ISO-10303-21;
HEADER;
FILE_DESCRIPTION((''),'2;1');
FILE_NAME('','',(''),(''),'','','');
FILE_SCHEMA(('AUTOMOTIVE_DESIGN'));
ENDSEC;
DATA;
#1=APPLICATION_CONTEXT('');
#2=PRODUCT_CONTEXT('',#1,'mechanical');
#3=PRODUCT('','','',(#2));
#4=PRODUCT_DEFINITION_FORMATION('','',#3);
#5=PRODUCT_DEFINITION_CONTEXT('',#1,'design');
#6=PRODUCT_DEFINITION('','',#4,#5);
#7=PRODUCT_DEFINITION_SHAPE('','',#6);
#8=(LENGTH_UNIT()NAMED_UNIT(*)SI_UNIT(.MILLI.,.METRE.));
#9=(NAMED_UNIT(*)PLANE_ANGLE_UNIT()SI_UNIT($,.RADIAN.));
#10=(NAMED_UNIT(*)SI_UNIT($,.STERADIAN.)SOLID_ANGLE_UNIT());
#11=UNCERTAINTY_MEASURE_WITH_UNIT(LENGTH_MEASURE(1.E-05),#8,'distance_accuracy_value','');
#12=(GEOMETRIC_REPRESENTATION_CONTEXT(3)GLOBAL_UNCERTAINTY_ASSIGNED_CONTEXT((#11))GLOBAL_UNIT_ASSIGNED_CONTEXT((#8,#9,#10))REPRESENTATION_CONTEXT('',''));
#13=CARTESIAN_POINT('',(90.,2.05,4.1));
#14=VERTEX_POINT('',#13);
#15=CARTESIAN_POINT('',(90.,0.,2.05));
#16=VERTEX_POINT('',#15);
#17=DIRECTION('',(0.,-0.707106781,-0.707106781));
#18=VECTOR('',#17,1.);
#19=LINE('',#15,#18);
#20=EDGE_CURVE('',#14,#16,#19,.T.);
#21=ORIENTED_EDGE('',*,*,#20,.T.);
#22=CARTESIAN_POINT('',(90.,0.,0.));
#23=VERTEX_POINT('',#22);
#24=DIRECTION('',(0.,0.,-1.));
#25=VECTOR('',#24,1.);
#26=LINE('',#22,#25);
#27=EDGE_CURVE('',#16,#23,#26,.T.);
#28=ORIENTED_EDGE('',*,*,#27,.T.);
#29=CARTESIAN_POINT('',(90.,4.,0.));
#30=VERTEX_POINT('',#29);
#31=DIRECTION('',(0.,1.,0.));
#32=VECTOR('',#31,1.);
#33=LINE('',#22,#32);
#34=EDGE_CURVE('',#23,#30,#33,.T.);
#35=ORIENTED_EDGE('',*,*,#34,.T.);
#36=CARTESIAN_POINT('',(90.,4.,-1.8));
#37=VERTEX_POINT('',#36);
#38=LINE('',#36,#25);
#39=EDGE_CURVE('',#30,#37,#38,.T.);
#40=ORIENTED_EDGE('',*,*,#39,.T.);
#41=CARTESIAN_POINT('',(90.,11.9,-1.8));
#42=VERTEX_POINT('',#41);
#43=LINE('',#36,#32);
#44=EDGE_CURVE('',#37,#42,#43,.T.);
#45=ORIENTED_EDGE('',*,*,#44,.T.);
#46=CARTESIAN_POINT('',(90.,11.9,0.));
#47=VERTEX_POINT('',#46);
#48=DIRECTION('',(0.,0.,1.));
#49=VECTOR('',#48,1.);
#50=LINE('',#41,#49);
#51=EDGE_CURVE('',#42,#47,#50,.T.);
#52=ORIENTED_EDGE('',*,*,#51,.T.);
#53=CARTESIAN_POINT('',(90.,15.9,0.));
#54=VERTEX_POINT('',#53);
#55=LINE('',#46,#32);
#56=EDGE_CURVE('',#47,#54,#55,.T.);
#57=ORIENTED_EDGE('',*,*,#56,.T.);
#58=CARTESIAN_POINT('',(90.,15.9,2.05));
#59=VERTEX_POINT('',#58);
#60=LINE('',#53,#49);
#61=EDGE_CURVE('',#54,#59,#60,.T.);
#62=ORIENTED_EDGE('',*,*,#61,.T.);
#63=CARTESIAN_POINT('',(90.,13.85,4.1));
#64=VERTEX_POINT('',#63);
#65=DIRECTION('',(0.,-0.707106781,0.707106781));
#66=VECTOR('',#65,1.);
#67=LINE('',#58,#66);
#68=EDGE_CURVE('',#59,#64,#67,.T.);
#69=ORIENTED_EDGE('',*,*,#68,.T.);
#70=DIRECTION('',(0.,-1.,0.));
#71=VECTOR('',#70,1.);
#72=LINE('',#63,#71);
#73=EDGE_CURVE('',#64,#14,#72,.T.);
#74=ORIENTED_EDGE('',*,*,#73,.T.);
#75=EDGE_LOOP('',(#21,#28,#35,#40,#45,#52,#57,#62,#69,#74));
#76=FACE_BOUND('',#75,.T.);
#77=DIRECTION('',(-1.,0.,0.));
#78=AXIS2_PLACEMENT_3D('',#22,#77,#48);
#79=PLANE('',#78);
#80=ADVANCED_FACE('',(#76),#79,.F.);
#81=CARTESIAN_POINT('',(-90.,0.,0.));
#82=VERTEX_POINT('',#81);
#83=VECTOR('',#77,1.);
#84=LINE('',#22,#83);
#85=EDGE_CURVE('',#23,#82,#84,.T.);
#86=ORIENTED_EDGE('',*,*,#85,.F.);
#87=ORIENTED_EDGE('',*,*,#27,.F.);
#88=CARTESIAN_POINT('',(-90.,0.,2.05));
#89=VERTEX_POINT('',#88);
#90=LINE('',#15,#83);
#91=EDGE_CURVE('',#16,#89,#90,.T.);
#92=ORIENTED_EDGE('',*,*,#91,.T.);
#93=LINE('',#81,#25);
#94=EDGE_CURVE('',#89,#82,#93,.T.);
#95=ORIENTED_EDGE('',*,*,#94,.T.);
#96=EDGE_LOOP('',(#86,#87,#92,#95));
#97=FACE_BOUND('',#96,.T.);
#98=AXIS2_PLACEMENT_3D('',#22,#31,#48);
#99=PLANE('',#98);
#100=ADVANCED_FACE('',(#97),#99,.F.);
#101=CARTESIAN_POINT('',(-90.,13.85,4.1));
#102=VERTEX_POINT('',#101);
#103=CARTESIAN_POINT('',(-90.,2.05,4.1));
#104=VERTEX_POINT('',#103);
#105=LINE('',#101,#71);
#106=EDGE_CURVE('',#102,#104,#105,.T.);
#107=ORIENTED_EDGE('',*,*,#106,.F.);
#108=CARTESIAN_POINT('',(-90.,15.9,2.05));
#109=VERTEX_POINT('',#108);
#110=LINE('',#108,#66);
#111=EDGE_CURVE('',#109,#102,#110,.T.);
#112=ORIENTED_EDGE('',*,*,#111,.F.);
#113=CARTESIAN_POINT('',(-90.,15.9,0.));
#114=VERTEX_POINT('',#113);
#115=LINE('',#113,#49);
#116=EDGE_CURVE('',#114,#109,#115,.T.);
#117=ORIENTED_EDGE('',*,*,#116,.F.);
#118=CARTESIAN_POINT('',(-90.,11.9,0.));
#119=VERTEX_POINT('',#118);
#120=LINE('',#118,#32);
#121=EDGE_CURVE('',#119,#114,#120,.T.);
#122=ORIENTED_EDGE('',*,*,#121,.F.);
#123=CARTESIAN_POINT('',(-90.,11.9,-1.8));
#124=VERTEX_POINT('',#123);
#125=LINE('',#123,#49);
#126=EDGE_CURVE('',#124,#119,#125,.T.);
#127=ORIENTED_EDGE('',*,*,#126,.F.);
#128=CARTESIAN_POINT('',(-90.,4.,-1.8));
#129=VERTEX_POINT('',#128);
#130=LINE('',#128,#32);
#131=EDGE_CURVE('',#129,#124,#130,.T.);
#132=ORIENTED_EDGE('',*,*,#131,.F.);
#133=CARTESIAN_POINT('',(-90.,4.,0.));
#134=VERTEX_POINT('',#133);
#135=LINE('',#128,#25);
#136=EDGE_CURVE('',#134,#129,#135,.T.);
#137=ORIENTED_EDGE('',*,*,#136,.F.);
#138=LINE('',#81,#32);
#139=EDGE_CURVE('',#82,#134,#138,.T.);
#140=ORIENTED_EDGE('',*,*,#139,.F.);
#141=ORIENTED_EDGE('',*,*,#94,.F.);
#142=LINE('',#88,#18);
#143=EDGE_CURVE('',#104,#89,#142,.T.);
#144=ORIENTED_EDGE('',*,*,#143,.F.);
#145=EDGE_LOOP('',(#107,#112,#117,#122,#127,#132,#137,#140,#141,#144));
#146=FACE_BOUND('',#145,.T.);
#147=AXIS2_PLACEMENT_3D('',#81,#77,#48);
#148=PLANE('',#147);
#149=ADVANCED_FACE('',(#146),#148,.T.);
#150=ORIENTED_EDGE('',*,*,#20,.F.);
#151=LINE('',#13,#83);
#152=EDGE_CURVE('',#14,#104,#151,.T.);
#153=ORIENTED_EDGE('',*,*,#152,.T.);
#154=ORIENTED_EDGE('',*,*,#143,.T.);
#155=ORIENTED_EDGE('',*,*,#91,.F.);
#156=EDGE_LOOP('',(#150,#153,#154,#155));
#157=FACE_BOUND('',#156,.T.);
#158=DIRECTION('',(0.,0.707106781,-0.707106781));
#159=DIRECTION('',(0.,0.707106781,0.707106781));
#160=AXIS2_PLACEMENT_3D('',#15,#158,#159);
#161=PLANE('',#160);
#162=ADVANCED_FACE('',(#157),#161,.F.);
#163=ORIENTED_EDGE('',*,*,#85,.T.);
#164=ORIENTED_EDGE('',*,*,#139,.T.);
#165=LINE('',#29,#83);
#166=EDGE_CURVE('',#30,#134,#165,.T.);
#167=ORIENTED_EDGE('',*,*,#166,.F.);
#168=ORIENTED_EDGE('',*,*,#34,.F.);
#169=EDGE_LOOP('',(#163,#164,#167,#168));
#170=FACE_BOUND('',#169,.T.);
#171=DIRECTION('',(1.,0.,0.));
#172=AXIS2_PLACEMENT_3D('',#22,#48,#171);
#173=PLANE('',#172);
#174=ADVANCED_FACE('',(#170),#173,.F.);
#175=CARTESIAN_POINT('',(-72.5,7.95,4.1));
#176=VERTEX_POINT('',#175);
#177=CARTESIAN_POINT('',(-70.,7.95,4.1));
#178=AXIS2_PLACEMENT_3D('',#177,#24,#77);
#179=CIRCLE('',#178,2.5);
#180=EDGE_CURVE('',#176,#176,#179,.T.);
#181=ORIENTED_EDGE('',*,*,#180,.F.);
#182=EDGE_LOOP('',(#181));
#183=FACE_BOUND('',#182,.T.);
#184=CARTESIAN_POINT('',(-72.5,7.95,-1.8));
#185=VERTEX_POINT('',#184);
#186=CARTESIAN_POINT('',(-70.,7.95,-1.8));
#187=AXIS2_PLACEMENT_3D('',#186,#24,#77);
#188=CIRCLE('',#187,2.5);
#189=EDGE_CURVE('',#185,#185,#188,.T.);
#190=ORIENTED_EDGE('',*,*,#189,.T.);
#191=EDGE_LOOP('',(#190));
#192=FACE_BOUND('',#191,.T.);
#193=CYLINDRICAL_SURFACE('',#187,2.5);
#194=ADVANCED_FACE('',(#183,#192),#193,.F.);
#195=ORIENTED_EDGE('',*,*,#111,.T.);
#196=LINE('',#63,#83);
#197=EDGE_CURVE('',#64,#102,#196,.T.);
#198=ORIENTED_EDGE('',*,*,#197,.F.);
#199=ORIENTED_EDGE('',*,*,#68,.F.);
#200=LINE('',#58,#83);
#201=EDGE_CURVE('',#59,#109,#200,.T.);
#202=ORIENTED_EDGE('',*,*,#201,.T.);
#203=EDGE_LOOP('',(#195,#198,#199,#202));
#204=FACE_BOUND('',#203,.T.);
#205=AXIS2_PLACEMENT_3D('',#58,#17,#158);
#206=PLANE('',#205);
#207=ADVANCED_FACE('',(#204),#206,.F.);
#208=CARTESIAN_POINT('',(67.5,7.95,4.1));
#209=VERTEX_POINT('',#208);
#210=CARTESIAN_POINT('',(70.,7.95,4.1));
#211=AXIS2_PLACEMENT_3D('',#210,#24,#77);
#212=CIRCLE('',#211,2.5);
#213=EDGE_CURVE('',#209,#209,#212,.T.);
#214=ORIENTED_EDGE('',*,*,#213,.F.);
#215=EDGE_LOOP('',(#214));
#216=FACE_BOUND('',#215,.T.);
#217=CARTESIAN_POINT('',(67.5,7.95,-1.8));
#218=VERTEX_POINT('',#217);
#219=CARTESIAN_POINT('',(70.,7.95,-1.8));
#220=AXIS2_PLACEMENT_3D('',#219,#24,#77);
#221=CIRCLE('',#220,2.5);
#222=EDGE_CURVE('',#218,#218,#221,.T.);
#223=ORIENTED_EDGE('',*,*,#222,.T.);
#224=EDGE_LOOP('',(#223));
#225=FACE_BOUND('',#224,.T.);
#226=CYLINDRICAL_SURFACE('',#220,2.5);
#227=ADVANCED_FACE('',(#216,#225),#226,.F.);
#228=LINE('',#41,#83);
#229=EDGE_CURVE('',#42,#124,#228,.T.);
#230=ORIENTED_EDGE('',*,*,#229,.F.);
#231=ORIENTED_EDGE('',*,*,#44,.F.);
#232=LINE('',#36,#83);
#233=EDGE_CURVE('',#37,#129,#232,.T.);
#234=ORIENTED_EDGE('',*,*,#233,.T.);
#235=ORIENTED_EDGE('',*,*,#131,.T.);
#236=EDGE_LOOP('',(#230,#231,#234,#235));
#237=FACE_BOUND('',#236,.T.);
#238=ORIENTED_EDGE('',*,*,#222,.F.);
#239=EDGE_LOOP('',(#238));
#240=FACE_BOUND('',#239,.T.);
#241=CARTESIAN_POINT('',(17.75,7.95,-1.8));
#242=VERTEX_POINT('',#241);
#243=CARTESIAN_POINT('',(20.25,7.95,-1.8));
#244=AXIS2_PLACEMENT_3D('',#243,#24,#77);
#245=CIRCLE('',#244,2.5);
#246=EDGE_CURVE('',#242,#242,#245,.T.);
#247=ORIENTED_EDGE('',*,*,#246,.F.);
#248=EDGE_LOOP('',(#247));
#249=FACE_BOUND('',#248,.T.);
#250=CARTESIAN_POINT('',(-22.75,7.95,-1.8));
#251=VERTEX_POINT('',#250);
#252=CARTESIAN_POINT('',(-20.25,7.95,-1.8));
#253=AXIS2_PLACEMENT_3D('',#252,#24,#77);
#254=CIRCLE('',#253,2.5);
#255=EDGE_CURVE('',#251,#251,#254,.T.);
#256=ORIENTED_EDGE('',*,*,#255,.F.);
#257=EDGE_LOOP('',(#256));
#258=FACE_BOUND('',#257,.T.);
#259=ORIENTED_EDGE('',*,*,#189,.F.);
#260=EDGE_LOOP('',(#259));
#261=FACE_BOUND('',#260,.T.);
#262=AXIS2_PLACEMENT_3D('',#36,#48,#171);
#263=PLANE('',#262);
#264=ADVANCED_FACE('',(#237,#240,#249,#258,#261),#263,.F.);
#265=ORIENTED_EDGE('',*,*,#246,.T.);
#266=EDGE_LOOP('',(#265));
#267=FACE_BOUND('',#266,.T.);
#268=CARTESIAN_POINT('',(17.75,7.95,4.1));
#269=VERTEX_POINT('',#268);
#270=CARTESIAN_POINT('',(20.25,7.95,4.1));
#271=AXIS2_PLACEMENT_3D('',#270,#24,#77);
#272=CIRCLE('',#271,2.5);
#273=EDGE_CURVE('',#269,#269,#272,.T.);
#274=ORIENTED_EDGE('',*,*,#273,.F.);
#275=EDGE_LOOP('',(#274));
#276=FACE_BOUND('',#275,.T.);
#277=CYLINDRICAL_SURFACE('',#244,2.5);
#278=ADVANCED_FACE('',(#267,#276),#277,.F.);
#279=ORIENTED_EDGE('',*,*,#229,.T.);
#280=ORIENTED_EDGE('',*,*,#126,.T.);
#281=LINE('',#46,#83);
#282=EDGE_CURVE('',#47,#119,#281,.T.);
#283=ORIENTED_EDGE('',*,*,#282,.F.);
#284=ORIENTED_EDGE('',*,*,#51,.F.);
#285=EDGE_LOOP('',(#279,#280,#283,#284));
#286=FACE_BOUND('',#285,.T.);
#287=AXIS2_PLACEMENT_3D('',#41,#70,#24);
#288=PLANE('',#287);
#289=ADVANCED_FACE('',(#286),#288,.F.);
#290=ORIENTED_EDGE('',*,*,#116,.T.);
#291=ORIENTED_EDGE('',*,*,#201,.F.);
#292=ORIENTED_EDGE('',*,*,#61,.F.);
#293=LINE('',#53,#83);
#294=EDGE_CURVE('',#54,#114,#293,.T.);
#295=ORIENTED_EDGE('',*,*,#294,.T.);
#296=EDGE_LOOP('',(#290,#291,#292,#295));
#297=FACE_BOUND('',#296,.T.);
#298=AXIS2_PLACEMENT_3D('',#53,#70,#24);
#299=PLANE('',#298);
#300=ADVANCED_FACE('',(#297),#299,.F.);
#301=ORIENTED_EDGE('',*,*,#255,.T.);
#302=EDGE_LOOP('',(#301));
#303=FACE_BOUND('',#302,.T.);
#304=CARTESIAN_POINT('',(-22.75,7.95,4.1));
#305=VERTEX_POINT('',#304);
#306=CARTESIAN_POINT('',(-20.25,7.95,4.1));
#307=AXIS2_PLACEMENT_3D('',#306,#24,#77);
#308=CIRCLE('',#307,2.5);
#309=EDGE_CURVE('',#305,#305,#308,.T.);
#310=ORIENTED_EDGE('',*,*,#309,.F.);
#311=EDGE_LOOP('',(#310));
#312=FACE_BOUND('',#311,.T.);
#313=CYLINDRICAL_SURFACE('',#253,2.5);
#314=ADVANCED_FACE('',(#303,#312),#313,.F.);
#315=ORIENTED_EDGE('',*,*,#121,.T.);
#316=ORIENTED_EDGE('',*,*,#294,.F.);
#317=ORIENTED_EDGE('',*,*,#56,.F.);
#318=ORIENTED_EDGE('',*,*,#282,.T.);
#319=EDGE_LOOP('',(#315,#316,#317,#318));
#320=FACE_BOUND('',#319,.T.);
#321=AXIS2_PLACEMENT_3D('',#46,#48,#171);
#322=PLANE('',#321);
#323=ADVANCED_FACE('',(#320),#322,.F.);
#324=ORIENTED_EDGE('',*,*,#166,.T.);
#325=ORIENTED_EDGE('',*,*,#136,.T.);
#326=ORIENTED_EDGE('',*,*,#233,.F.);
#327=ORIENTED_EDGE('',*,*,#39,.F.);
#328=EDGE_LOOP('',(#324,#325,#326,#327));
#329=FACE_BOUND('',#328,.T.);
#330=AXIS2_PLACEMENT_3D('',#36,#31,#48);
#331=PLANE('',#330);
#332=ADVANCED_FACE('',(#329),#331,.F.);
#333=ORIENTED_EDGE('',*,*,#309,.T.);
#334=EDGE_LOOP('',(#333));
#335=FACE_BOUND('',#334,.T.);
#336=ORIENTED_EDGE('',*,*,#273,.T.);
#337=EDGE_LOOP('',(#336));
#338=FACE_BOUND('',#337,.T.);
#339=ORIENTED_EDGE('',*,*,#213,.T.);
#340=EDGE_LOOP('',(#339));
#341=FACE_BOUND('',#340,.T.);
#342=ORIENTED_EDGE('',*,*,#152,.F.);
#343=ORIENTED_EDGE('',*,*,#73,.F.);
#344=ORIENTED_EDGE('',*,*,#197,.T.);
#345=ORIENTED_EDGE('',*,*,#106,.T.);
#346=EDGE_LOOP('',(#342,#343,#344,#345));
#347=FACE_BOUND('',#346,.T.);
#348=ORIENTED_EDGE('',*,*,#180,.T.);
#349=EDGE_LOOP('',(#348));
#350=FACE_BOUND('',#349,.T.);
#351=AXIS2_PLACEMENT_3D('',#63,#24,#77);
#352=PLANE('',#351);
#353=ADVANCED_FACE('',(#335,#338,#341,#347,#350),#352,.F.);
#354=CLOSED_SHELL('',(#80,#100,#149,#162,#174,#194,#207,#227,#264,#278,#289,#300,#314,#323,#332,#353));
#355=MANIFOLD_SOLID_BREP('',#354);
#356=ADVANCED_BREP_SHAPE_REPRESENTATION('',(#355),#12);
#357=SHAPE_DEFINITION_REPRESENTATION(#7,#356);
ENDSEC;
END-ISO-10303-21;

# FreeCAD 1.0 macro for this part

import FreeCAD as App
import Part
import Sketcher
Q = App.Units.Quantity


def add_polygon(sketch, points):
    """Adds a closed chain of lines whose ends are joined by coincident constraints."""
    first, n = sketch.GeometryCount, len(points)
    for a, b in zip(points, points[1:] + points[:1]):
        sketch.addGeometry(Part.LineSegment(App.Vector(*a, 0), App.Vector(*b, 0)), False)
    for i in range(n):
        sketch.addConstraint(Sketcher.Constraint("Coincident", first + i, 2, first + (i + 1) % n, 1))

doc = App.newDocument("Part")
body = doc.addObject("PartDesign::Body", "Body")

sketch1 = body.newObject("Sketcher::SketchObject", "Sketch")
sketch1.AttachmentSupport = (doc.getObject("YZ_Plane"), [""])
sketch1.MapMode = "FlatFace"
add_polygon(sketch1, [(13.8, 4.1), (2, 4.1), (0, 2), (0, 0), (4, 0), (4, -1.8), (11.9, -1.8), (11.9, 0), (15.9, 0), (15.9, 2)])
sketch1.addConstraint([
    Sketcher.Constraint("Horizontal", 0),
    Sketcher.Constraint("Vertical", 2),
    Sketcher.Constraint("Horizontal", 3),
    Sketcher.Constraint("Vertical", 4),
    Sketcher.Constraint("Horizontal", 5),
    Sketcher.Constraint("Vertical", 6),
    Sketcher.Constraint("Horizontal", 7),
    Sketcher.Constraint("Vertical", 8),
    Sketcher.Constraint("Coincident", 2, 2, -1, 1),
    Sketcher.Constraint("PointOnObject", 6, 2, -1),
    Sketcher.Constraint("Perpendicular", 1, 9),
    Sketcher.Constraint("Horizontal", 1, 2, 8, 2),
    Sketcher.Constraint("Equal", 3, 7),
    Sketcher.Constraint("Equal", 1, 9),
    Sketcher.Constraint("DistanceX", 3, 1, 3, 2, Q("4 mm")),
    Sketcher.Constraint("DistanceX", 0, 2, 0, 1, Q("11.8 mm")),
    Sketcher.Constraint("DistanceX", 5, 1, 5, 2, Q("7.9 mm")),
    Sketcher.Constraint("DistanceY", 4, 2, 4, 1, Q("1.8 mm")),
    Sketcher.Constraint("DistanceY", 2, 2, 2, 1, Q("2.05 mm")),
])
pad1 = body.newObject("PartDesign::Pad", "Pad")
pad1.Profile = sketch1
pad1.Length = 180
pad1.Midplane = True

sketch2 = body.newObject("Sketcher::SketchObject", "Sketch001")
sketch2.AttachmentSupport = (doc.getObject("XY_Plane"), [""])
sketch2.MapMode = "FlatFace"
sketch2.AttachmentOffset = App.Placement(App.Vector(0, 0, -1.8), App.Rotation())
sketch2.addGeometry([
    Part.Circle(App.Vector(70, 8, 0), App.Vector(0, 0, 1), 2.5),
    Part.Circle(App.Vector(20.2, 8, 0), App.Vector(0, 0, 1), 2.5),
    Part.Circle(App.Vector(-20.2, 8, 0), App.Vector(0, 0, 1), 2.5),
    Part.Circle(App.Vector(-70, 8, 0), App.Vector(0, 0, 1), 2.5),
], False)
sketch2.addConstraint([
    Sketcher.Constraint("Equal", 0, 1),
    Sketcher.Constraint("Equal", 1, 2),
    Sketcher.Constraint("Equal", 2, 3),
    Sketcher.Constraint("Symmetric", 1, 3, 2, 3, -2),
    Sketcher.Constraint("Symmetric", 0, 3, 3, 3, -2),
    Sketcher.Constraint("Horizontal", 0, 3, 1, 3),
    Sketcher.Constraint("Diameter", 0, Q("5 mm")),
    Sketcher.Constraint("DistanceX", -1, 1, 0, 3, Q("70 mm")),
    Sketcher.Constraint("DistanceX", 2, 3, 1, 3, Q("40.5 mm")),
    Sketcher.Constraint("DistanceY", -1, 1, 0, 3, Q("7.95 mm")),
])
doc.recompute()
hole = body.newObject("PartDesign::Hole", "Hole")
hole.Profile = sketch2
hole.ThreadType = "None"
hole.Diameter = 5
hole.DepthType = "Dimension"
hole.Depth = 28
hole.DrillPoint = "Angled"
hole.DrillPointAngle = 118
hole.Reversed = True

doc.recompute()
